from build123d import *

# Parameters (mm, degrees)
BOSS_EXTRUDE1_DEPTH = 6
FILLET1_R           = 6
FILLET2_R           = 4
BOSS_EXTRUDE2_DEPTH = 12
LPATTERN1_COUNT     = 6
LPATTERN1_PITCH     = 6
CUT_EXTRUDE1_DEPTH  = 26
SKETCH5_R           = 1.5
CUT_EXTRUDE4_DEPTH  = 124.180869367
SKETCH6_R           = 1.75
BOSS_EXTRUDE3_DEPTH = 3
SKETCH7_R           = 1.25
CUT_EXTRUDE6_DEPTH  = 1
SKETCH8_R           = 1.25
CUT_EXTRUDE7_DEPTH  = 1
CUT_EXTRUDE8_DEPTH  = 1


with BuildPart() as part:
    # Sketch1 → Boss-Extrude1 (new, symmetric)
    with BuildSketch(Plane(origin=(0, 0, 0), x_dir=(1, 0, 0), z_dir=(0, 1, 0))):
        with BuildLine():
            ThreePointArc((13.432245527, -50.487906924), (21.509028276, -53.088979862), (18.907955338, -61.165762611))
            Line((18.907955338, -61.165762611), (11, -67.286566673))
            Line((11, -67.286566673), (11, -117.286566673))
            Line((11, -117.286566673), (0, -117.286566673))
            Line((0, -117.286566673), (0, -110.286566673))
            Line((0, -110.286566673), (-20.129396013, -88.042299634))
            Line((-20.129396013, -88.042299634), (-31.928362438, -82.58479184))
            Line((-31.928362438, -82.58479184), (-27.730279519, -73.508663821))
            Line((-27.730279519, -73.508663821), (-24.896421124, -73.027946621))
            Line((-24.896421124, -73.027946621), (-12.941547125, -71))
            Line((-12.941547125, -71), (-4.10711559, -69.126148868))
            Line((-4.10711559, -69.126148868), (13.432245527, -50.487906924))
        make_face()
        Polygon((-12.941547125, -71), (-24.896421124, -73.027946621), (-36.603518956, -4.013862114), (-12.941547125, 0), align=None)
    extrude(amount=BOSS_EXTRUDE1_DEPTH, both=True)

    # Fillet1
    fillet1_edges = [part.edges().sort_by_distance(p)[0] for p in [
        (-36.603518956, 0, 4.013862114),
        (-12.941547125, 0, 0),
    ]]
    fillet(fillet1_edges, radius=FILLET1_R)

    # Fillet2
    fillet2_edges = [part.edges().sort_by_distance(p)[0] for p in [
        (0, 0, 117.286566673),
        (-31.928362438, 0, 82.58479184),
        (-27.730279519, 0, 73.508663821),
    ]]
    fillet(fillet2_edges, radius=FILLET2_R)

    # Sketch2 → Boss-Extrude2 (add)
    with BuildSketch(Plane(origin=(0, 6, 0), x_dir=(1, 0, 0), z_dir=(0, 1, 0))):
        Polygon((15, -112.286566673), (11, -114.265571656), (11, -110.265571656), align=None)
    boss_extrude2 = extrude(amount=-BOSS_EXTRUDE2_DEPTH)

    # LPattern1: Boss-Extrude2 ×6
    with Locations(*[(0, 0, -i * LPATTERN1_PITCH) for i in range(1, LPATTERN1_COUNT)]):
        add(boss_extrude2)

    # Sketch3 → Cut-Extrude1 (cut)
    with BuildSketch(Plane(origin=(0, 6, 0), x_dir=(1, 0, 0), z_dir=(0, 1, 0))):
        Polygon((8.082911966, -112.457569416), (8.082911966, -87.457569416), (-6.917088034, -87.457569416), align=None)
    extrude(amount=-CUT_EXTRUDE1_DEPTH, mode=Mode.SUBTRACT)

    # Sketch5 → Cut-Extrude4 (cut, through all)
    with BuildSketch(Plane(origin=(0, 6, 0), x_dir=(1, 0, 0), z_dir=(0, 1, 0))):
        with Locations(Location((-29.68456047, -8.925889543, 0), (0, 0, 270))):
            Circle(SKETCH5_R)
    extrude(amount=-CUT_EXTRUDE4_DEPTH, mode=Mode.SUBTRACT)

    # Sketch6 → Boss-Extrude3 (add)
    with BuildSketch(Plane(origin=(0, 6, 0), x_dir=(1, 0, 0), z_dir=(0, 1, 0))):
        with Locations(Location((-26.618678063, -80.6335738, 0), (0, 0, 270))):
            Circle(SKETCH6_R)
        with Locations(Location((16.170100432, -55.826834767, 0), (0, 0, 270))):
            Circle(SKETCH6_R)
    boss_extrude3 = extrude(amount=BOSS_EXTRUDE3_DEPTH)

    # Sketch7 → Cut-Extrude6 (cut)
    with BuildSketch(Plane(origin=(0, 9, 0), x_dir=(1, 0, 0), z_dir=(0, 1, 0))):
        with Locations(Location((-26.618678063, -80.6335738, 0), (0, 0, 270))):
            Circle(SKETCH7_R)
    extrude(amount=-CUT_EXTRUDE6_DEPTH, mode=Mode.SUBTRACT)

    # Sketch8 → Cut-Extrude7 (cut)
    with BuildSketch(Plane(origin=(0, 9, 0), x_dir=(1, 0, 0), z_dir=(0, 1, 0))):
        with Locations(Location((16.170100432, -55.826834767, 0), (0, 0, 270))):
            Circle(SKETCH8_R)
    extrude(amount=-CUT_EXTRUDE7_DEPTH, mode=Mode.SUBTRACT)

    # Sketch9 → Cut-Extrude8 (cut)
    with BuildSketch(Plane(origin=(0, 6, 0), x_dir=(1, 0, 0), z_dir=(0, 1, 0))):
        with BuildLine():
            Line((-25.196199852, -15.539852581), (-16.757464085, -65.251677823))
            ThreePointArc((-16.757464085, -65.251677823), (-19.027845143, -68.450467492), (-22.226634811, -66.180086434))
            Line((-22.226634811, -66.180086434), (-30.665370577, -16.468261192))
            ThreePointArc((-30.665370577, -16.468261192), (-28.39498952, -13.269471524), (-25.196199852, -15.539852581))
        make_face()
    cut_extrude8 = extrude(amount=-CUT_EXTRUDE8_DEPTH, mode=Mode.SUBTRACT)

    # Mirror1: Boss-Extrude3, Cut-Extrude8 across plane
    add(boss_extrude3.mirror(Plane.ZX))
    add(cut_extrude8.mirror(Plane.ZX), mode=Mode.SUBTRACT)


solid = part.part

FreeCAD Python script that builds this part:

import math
import FreeCAD as App
import Part
import Sketcher
Q = App.Units.Quantity


def edges_at(feature, points):
    """Names of the edges that pass closest to the given points."""
    edges = feature.Shape.Edges
    near = lambda p: min(range(len(edges)), key=lambda i: edges[i].distToShape(Part.Vertex(*p))[0])
    return sorted({f"Edge{near(p) + 1}" for p in points})


def add_polygon(sketch, points):
    """Adds a closed chain of lines whose ends are joined by coincident constraints."""
    first, n = sketch.GeometryCount, len(points)
    for a, b in zip(points, points[1:] + points[:1]):
        sketch.addGeometry(Part.LineSegment(App.Vector(*a, 0), App.Vector(*b, 0)), False)
    for i in range(n):
        sketch.addConstraint(Sketcher.Constraint("Coincident", first + i, 2, first + (i + 1) % n, 1))

doc = App.newDocument("Part")
body = doc.addObject("PartDesign::Body", "Body")

sketch1 = body.newObject("Sketcher::SketchObject", "Sketch")
sketch1.AttachmentSupport = (doc.getObject("XZ_Plane"), [""])
sketch1.MapMode = "FlatFace"
sketch1.addGeometry([
    Part.ArcOfCircle(Part.Circle(App.Vector(16.2, 55.8, 0), App.Vector(0, 0, 1), 6), math.radians(-117), math.radians(63)),
    Part.LineSegment(App.Vector(13.4, 50.5, 0), App.Vector(-4.1, 69.1, 0)),
    Part.LineSegment(App.Vector(-4.1, 69.1, 0), App.Vector(-12.9, 71, 0)),
    Part.LineSegment(App.Vector(-12.9, 71, 0), App.Vector(-12.9, 0, 0)),
    Part.LineSegment(App.Vector(-12.9, 0, 0), App.Vector(-36.6, 4, 0)),
    Part.LineSegment(App.Vector(-36.6, 4, 0), App.Vector(-24.9, 73, 0)),
    Part.LineSegment(App.Vector(-24.9, 73, 0), App.Vector(-27.7, 73.5, 0)),
    Part.LineSegment(App.Vector(-27.7, 73.5, 0), App.Vector(-31.9, 82.6, 0)),
    Part.LineSegment(App.Vector(-31.9, 82.6, 0), App.Vector(-20.1, 88, 0)),
    Part.LineSegment(App.Vector(-20.1, 88, 0), App.Vector(0, 110.3, 0)),
    Part.LineSegment(App.Vector(0, 110.3, 0), App.Vector(0, 117.3, 0)),
    Part.LineSegment(App.Vector(0, 117.3, 0), App.Vector(11, 117.3, 0)),
    Part.LineSegment(App.Vector(11, 117.3, 0), App.Vector(11, 67.3, 0)),
    Part.LineSegment(App.Vector(11, 67.3, 0), App.Vector(18.9, 61.2, 0)),
], False)
sketch1.addConstraint([
    Sketcher.Constraint("Coincident", 0, 1, 1, 1),
    Sketcher.Constraint("Coincident", 1, 2, 2, 1),
    Sketcher.Constraint("Coincident", 2, 2, 3, 1),
    Sketcher.Constraint("Coincident", 3, 2, 4, 1),
    Sketcher.Constraint("Coincident", 4, 2, 5, 1),
    Sketcher.Constraint("Coincident", 5, 2, 6, 1),
    Sketcher.Constraint("Coincident", 6, 2, 7, 1),
    Sketcher.Constraint("Coincident", 7, 2, 8, 1),
    Sketcher.Constraint("Coincident", 8, 2, 9, 1),
    Sketcher.Constraint("Coincident", 9, 2, 10, 1),
    Sketcher.Constraint("Coincident", 10, 2, 11, 1),
    Sketcher.Constraint("Coincident", 11, 2, 12, 1),
    Sketcher.Constraint("Coincident", 12, 2, 13, 1),
    Sketcher.Constraint("Coincident", 13, 2, 0, 2),
    Sketcher.Constraint("Vertical", 3),
    Sketcher.Constraint("Vertical", 10),
    Sketcher.Constraint("Horizontal", 11),
    Sketcher.Constraint("Vertical", 12),
    Sketcher.Constraint("PointOnObject", 3, 2, -1),
    Sketcher.Constraint("PointOnObject", 9, 2, -2),
    Sketcher.Constraint("Perpendicular", 4, 5),
    Sketcher.Constraint("Perpendicular", 5, 6),
    Sketcher.Constraint("Perpendicular", 7, 8),
    Sketcher.Constraint("Equal", 7, 13),
    Sketcher.Constraint("Radius", 0, Q("6 mm")),
    Sketcher.Constraint("DistanceX", 11, 1, 11, 2, Q("11 mm")),
    Sketcher.Constraint("DistanceY", 3, 2, 3, 1, Q("71 mm")),
    Sketcher.Constraint("DistanceY", 10, 1, 10, 2, Q("7 mm")),
    Sketcher.Constraint("DistanceY", 12, 2, 12, 1, Q("50 mm")),
    Sketcher.Constraint("Distance", 4, Q("24 mm")),
    Sketcher.Constraint("Distance", 5, Q("70 mm")),
    Sketcher.Constraint("Distance", 7, Q("10 mm")),
    Sketcher.Constraint("Distance", 8, Q("13 mm")),
    Sketcher.Constraint("Distance", 9, Q("30 mm")),
    Sketcher.Constraint("DistanceX", -1, 1, 0, 3, Q("16.1701 mm")),
    Sketcher.Constraint("DistanceY", -1, 1, 8, 2, Q("88.0423 mm")),
    Sketcher.Constraint("DistanceY", -1, 1, 1, 2, Q("69.126149 mm")),
    Sketcher.Constraint("DistanceX", 4, 2, -1, 1, Q("36.603519 mm")),
    Sketcher.Constraint("DistanceX", 5, 2, -1, 1, Q("24.896421 mm")),
    Sketcher.Constraint("DistanceX", 6, 2, -1, 1, Q("27.73028 mm")),
    Sketcher.Constraint("DistanceX", 1, 2, 0, 1, Q("17.539361 mm")),
    Sketcher.Constraint("DistanceY", 0, 1, 1, 2, Q("18.638242 mm")),
    Sketcher.Constraint("DistanceX", 2, 2, 1, 2, Q("8.834432 mm")),
])
pad1 = body.newObject("PartDesign::Pad", "Pad")
pad1.Profile = sketch1
pad1.Length = 12
pad1.Midplane = True
doc.recompute()

fillet = body.newObject("PartDesign::Fillet", "Fillet")
fillet.Base = (pad1, edges_at(pad1, [(-36.604, 0, 4.014), (-12.942, 0, 0)]))
fillet.Radius = 6
doc.recompute()

fillet2 = body.newObject("PartDesign::Fillet", "Fillet001")
fillet2.Base = (fillet, edges_at(fillet, [(0, 0, 117.287), (-31.928, 0, 82.585), (-27.73, 0, 73.509)]))
fillet2.Radius = 4

sketch2 = body.newObject("Sketcher::SketchObject", "Sketch001")
sketch2.AttachmentSupport = (doc.getObject("XZ_Plane"), [""])
sketch2.MapMode = "FlatFace"
sketch2.AttachmentOffset = App.Placement(App.Vector(0, 0, -6), App.Rotation())
add_polygon(sketch2, [(11, 114.3), (15, 112.3), (11, 110.3)])
sketch2.addConstraint([
    Sketcher.Constraint("Vertical", 2),
    Sketcher.Constraint("DistanceY", 2, 1, 2, 2, Q("4 mm")),
    Sketcher.Constraint("DistanceX", -1, 1, 0, 2, Q("15 mm")),
    Sketcher.Constraint("DistanceX", -1, 1, 1, 2, Q("11 mm")),
    Sketcher.Constraint("DistanceY", -1, 1, 1, 2, Q("110.265572 mm")),
    Sketcher.Constraint("Distance", 0, Q("4.462786 mm")),
])
pad2 = body.newObject("PartDesign::Pad", "Pad001")
pad2.Profile = sketch2
pad2.Length = 12
doc.recompute()

linearpattern = body.newObject("PartDesign::LinearPattern", "LinearPattern")
linearpattern.Originals = [pad2]
linearpattern.Direction = (doc.getObject("Z_Axis"), [""])
linearpattern.Mode = "offset"
linearpattern.Offset = 6
linearpattern.Occurrences = 6
linearpattern.Reversed = True
body.Tip = linearpattern

sketch3 = body.newObject("Sketcher::SketchObject", "Sketch002")
sketch3.AttachmentSupport = (doc.getObject("XZ_Plane"), [""])
sketch3.MapMode = "FlatFace"
sketch3.AttachmentOffset = App.Placement(App.Vector(0, 0, -6), App.Rotation())
add_polygon(sketch3, [(8, 112), (8, 87), (-7, 87)])
sketch3.addConstraint([
    Sketcher.Constraint("Vertical", 0),
    Sketcher.Constraint("Horizontal", 1),
    Sketcher.Constraint("DistanceX", 1, 2, 1, 1, Q("15 mm")),
    Sketcher.Constraint("DistanceY", 0, 2, 0, 1, Q("25 mm")),
    Sketcher.Constraint("DistanceX", -1, 1, 0, 2, Q("8.082912 mm")),
    Sketcher.Constraint("DistanceY", -1, 1, 0, 2, Q("87.457569 mm")),
])
pocket1 = body.newObject("PartDesign::Pocket", "Pocket")
pocket1.Profile = sketch3
pocket1.Length = 26
pocket1.Reversed = True

sketch4 = body.newObject("Sketcher::SketchObject", "Sketch003")
sketch4.AttachmentSupport = (doc.getObject("XZ_Plane"), [""])
sketch4.MapMode = "FlatFace"
sketch4.AttachmentOffset = App.Placement(App.Vector(0, 0, -6), App.Rotation())
sketch4.addGeometry(Part.Circle(App.Vector(-29.7, 8.9, 0), App.Vector(0, 0, 1), 1.5), False)
sketch4.addConstraint([
    Sketcher.Constraint("Diameter", 0, Q("3 mm")),
    Sketcher.Constraint("DistanceX", 0, 3, -1, 1, Q("29.68456 mm")),
    Sketcher.Constraint("DistanceY", -1, 1, 0, 3, Q("8.92589 mm")),
])
pocket2 = body.newObject("PartDesign::Pocket", "Pocket001")
pocket2.Profile = sketch4
pocket2.Type = "ThroughAll"
pocket2.Reversed = True

sketch5 = body.newObject("Sketcher::SketchObject", "Sketch004")
sketch5.AttachmentSupport = (doc.getObject("XZ_Plane"), [""])
sketch5.MapMode = "FlatFace"
sketch5.AttachmentOffset = App.Placement(App.Vector(0, 0, -6), App.Rotation())
sketch5.addGeometry([
    Part.Circle(App.Vector(-26.6, 80.6, 0), App.Vector(0, 0, 1), 1.8),
    Part.Circle(App.Vector(16.2, 55.8, 0), App.Vector(0, 0, 1), 1.8),
], False)
sketch5.addConstraint([
    Sketcher.Constraint("Equal", 0, 1),
    Sketcher.Constraint("Diameter", 0, Q("3.5 mm")),
    Sketcher.Constraint("DistanceX", -1, 1, 1, 3, Q("16.1701 mm")),
    Sketcher.Constraint("DistanceX", 0, 3, -1, 1, Q("26.618678 mm")),
    Sketcher.Constraint("DistanceY", 1, 3, 0, 3, Q("24.806739 mm")),
    Sketcher.Constraint("DistanceY", -1, 1, 0, 3, Q("80.633574 mm")),
])
pad3 = body.newObject("PartDesign::Pad", "Pad002")
pad3.Profile = sketch5
pad3.Length = 3
pad3.Reversed = True

sketch6 = body.newObject("Sketcher::SketchObject", "Sketch005")
sketch6.AttachmentSupport = (doc.getObject("XZ_Plane"), [""])
sketch6.MapMode = "FlatFace"
sketch6.AttachmentOffset = App.Placement(App.Vector(0, 0, -9), App.Rotation())
sketch6.addGeometry(Part.Circle(App.Vector(-26.6, 80.6, 0), App.Vector(0, 0, 1), 1.2), False)
sketch6.addConstraint([
    Sketcher.Constraint("Diameter", 0, Q("2.5 mm")),
    Sketcher.Constraint("DistanceX", 0, 3, -1, 1, Q("26.618678 mm")),
    Sketcher.Constraint("DistanceY", -1, 1, 0, 3, Q("80.633574 mm")),
])
pocket3 = body.newObject("PartDesign::Pocket", "Pocket002")
pocket3.Profile = sketch6
pocket3.Length = 1
pocket3.Reversed = True

sketch7 = body.newObject("Sketcher::SketchObject", "Sketch006")
sketch7.AttachmentSupport = (doc.getObject("XZ_Plane"), [""])
sketch7.MapMode = "FlatFace"
sketch7.AttachmentOffset = App.Placement(App.Vector(0, 0, -9), App.Rotation())
sketch7.addGeometry(Part.Circle(App.Vector(16.2, 55.8, 0), App.Vector(0, 0, 1), 1.2), False)
sketch7.addConstraint([
    Sketcher.Constraint("Diameter", 0, Q("2.5 mm")),
    Sketcher.Constraint("DistanceX", -1, 1, 0, 3, Q("16.1701 mm")),
    Sketcher.Constraint("DistanceY", -1, 1, 0, 3, Q("55.826835 mm")),
])
pocket4 = body.newObject("PartDesign::Pocket", "Pocket003")
pocket4.Profile = sketch7
pocket4.Length = 1
pocket4.Reversed = True

sketch8 = body.newObject("Sketcher::SketchObject", "Sketch007")
sketch8.AttachmentSupport = (doc.getObject("XZ_Plane"), [""])
sketch8.MapMode = "FlatFace"
sketch8.AttachmentOffset = App.Placement(App.Vector(0, 0, -6), App.Rotation())
sketch8.addGeometry([
    Part.LineSegment(App.Vector(-16.8, 65.3, 0), App.Vector(-25.2, 15.5, 0)),
    Part.ArcOfCircle(Part.Circle(App.Vector(-27.9, 16, 0), App.Vector(0, 0, 1), 2.8), math.radians(170), math.radians(350)),
    Part.LineSegment(App.Vector(-30.7, 16.5, 0), App.Vector(-22.2, 66.2, 0)),
    Part.ArcOfCircle(Part.Circle(App.Vector(-19.5, 65.7, 0), App.Vector(0, 0, 1), 2.8), math.radians(-10), math.radians(170)),
], False)
sketch8.addConstraint([
    Sketcher.Constraint("Tangent", 0, 2, 1, 2),
    Sketcher.Constraint("Tangent", 1, 1, 2, 1),
    Sketcher.Constraint("Tangent", 2, 2, 3, 2),
    Sketcher.Constraint("Tangent", 3, 1, 0, 1),
    Sketcher.Constraint("Equal", 1, 3),
    Sketcher.Constraint("Radius", 1, Q("2.773706 mm")),
    Sketcher.Constraint("DistanceX", 0, 2, -1, 1, Q("25.1962 mm")),
    Sketcher.Constraint("Distance", 0, Q("50.422989 mm")),
    Sketcher.Constraint("DistanceX", 3, 3, -1, 1, Q("19.492049 mm")),
    Sketcher.Constraint("DistanceY", -1, 1, 1, 1, Q("16.468261 mm")),
])
pocket5 = body.newObject("PartDesign::Pocket", "Pocket004")
pocket5.Profile = sketch8
pocket5.Length = 1
pocket5.Reversed = True
doc.recompute()

mirrored = body.newObject("PartDesign::Mirrored", "Mirrored")
mirrored.Originals = [pad3, pocket5]
mirrored.MirrorPlane = (doc.getObject("XZ_Plane"), [""])
body.Tip = mirrored

doc.recompute()
